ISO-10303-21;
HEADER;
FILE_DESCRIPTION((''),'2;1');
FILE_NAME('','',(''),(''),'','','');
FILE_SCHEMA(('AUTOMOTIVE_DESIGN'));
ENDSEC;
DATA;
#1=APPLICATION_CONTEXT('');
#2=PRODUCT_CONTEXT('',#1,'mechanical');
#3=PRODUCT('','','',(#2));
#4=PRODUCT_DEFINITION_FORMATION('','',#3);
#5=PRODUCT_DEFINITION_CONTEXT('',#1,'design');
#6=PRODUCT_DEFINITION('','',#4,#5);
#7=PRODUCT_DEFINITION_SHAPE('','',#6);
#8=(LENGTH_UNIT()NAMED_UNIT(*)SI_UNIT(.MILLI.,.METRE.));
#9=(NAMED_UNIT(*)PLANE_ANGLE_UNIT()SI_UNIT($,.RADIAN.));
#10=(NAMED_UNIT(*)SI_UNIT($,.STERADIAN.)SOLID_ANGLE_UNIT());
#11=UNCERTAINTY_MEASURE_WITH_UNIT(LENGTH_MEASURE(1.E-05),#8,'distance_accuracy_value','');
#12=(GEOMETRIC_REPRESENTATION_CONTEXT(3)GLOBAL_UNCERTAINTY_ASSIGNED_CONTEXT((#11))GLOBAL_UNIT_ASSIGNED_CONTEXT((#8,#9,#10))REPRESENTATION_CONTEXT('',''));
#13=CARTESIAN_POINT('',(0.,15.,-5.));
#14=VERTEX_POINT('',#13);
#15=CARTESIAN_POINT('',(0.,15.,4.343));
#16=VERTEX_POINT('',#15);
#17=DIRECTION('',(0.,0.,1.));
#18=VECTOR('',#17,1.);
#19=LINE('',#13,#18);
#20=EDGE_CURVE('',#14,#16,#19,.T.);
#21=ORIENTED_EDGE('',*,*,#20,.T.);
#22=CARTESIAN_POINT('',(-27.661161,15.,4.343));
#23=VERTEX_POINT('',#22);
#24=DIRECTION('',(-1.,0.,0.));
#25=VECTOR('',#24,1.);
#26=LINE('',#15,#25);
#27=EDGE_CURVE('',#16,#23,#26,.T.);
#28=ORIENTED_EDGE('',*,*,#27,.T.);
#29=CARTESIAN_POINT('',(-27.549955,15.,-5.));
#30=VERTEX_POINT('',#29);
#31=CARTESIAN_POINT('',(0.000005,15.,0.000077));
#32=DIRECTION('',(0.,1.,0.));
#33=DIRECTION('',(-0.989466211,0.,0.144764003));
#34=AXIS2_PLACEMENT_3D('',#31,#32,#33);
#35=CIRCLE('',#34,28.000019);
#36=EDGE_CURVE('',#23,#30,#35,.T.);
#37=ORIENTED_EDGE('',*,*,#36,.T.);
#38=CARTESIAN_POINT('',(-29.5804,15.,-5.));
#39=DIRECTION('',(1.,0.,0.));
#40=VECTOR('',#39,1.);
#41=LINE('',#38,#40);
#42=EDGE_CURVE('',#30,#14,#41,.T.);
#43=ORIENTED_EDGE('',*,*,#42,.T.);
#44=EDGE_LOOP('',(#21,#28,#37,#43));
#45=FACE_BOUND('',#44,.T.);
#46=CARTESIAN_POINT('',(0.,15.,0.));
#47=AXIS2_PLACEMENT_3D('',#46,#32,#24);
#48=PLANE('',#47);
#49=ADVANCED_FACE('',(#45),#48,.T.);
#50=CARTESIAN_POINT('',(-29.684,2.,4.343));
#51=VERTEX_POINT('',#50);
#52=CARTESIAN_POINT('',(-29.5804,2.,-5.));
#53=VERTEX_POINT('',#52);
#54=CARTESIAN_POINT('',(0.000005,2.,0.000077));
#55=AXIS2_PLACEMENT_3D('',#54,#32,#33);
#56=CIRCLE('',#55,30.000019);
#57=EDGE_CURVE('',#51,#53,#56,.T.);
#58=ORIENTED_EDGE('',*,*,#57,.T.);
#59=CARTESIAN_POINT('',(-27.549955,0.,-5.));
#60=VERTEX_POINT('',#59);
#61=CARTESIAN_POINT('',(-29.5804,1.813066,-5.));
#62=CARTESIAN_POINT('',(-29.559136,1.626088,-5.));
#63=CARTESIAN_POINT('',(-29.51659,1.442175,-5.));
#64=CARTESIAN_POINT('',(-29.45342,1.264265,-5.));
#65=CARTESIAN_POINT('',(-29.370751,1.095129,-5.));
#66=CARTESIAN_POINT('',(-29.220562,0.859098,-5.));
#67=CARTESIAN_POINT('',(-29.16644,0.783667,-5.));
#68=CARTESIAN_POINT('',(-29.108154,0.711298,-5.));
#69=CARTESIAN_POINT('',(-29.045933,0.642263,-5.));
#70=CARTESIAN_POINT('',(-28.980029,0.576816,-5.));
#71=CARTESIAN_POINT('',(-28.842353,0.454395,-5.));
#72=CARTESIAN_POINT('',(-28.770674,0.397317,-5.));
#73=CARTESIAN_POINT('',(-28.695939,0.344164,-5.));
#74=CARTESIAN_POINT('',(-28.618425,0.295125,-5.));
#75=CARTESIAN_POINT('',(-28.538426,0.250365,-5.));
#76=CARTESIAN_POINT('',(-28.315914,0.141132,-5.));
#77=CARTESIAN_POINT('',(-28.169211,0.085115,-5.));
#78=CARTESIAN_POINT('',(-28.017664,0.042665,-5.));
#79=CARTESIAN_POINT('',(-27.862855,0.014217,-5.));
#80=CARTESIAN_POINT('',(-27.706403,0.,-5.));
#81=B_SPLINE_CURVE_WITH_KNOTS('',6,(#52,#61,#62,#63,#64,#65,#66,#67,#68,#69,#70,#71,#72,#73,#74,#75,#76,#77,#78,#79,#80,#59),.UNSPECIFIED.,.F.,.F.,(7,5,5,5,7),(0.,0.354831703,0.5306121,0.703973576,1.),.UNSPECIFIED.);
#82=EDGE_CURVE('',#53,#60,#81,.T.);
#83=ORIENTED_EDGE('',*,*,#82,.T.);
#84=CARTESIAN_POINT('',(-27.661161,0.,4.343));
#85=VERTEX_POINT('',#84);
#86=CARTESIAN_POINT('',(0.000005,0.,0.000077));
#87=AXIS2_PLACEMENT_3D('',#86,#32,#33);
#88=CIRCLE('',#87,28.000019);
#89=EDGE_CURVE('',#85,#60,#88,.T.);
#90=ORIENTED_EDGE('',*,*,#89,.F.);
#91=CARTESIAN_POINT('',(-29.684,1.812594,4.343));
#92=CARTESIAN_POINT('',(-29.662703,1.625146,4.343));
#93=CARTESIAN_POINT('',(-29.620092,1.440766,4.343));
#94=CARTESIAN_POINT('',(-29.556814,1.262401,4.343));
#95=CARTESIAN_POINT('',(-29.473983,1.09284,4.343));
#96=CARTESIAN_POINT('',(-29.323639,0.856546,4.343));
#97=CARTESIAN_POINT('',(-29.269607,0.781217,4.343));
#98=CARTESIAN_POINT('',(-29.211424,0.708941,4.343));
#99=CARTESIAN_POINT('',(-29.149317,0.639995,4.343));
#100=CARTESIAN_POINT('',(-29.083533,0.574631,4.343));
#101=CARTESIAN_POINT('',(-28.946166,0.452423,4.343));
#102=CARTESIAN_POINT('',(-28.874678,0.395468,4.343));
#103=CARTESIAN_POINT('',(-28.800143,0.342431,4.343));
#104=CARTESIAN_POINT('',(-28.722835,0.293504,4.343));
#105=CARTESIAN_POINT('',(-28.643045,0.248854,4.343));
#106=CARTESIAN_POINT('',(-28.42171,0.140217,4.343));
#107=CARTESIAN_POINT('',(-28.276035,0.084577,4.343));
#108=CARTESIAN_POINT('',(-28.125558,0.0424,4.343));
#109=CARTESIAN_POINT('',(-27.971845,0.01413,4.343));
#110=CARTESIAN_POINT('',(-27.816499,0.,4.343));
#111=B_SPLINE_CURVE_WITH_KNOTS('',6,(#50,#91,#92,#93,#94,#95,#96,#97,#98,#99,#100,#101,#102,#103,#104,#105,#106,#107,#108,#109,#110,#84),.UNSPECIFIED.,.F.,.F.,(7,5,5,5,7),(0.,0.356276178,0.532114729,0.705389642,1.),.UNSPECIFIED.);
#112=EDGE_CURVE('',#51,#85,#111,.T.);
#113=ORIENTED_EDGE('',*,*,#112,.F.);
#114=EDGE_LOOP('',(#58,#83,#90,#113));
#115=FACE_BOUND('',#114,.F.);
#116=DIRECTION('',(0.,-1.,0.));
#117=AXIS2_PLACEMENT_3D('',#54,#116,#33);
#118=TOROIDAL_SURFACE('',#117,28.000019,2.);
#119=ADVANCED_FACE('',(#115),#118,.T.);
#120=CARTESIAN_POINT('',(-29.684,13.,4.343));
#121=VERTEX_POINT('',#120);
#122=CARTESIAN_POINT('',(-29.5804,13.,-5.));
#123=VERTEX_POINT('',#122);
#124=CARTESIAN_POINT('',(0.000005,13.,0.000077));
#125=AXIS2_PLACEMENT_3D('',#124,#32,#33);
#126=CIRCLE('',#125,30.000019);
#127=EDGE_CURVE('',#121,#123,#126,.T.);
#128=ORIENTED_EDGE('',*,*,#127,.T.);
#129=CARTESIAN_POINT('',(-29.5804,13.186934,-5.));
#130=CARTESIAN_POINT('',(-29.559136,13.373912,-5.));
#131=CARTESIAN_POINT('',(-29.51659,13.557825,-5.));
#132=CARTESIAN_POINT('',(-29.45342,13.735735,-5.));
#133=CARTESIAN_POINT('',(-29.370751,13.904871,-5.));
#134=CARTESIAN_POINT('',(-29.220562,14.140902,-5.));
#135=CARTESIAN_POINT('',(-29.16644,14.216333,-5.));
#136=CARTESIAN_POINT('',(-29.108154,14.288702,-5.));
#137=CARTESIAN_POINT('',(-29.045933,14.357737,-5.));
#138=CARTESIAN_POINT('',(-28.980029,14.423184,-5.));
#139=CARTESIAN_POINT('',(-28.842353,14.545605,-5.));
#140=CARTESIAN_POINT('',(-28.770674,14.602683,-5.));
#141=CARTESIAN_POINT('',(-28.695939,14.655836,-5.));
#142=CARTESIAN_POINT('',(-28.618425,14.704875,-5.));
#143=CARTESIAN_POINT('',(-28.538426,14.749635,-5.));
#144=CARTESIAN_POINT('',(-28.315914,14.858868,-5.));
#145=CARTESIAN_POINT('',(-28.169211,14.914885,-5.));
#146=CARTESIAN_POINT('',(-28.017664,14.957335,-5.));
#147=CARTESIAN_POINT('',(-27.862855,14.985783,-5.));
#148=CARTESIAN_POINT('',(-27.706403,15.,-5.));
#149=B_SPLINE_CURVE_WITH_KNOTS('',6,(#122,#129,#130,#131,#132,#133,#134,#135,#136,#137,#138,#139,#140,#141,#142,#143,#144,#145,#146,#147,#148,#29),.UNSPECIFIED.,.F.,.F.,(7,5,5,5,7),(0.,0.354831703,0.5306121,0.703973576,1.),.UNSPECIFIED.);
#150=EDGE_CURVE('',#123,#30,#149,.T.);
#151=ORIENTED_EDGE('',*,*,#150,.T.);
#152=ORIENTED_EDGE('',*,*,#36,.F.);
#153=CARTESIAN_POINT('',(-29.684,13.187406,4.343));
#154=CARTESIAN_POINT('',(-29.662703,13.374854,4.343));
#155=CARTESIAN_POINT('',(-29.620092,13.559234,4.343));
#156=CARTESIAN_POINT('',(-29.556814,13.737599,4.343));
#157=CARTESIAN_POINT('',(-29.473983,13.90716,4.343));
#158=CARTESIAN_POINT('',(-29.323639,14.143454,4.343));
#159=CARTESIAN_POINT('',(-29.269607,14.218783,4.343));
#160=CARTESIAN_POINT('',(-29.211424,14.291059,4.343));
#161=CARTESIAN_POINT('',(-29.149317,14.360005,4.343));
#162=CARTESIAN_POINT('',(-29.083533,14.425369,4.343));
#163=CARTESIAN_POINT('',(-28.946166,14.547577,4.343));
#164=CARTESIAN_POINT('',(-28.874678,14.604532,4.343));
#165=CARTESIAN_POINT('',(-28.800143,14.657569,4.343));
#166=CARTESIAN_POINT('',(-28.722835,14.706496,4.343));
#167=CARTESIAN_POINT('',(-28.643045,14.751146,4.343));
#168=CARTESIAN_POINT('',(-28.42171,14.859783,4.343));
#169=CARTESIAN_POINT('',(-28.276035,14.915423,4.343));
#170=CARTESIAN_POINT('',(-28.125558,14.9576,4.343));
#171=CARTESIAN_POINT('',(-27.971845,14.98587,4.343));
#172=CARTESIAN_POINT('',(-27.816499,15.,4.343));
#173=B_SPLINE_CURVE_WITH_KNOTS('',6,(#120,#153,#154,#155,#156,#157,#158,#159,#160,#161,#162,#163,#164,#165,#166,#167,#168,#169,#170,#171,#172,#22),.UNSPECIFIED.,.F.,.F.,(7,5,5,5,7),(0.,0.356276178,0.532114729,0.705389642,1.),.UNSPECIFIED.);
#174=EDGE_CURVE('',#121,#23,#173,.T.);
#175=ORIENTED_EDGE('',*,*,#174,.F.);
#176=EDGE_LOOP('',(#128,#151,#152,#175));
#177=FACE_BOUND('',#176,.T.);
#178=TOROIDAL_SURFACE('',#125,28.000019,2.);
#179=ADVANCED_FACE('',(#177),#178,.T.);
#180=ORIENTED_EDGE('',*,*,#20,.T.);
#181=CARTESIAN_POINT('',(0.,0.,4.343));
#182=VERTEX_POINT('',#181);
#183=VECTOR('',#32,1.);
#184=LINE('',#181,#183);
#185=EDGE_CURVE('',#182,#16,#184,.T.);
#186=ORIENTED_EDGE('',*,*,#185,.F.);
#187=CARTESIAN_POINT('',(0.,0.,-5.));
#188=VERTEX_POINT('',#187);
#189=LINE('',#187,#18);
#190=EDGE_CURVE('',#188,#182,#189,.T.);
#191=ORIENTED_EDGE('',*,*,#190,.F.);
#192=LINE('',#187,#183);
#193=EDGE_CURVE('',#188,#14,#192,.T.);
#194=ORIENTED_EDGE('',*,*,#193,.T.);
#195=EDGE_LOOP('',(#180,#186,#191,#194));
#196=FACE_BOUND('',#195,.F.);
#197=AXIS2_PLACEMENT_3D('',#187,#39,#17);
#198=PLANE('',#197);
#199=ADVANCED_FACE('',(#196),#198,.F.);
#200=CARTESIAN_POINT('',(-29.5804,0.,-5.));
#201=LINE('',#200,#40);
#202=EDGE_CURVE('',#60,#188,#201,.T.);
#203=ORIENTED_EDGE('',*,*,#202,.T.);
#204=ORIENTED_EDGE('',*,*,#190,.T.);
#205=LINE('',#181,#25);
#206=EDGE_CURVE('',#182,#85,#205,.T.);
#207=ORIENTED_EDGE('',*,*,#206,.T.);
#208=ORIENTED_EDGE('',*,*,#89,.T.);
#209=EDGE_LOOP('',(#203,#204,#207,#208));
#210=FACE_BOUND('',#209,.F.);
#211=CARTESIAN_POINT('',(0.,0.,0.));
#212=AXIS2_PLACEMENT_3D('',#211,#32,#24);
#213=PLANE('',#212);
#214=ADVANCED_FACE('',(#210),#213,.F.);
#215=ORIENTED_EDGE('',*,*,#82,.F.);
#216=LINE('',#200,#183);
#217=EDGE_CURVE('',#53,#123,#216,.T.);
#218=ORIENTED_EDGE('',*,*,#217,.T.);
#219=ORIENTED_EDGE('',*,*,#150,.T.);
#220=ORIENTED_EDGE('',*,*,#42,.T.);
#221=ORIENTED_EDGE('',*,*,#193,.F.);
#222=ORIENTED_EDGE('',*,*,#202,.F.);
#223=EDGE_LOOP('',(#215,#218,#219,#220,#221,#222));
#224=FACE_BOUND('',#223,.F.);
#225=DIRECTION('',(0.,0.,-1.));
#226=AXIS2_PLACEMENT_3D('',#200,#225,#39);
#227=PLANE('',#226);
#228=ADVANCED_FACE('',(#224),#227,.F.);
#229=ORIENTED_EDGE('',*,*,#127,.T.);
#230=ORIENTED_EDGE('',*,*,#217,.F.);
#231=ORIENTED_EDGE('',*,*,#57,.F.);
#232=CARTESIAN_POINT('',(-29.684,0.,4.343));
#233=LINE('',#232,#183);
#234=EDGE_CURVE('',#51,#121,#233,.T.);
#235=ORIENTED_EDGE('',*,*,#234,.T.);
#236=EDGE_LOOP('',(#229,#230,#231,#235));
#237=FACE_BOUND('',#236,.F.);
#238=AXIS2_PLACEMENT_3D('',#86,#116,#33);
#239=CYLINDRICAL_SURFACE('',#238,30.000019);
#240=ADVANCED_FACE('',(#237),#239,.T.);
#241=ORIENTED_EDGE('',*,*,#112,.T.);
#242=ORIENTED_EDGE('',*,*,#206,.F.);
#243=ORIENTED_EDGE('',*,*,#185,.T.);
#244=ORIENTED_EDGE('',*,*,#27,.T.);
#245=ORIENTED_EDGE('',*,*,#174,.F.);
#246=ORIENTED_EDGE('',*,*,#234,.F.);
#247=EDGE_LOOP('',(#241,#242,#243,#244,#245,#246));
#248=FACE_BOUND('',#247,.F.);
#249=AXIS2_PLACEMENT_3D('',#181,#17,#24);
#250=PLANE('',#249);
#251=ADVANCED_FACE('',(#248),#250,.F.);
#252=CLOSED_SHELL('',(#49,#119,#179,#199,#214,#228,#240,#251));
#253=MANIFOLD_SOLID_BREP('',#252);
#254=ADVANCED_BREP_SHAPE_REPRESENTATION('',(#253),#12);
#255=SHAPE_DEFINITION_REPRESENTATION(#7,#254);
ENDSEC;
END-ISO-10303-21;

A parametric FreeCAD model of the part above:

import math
import FreeCAD as App
import Part
import Sketcher

V = App.Vector
Q = App.Units.Quantity


def edges_at(feature, points):
    """Names of the edges that pass closest to the given points."""
    edges = feature.Shape.Edges
    near = lambda p: min(range(len(edges)), key=lambda i: edges[i].distToShape(Part.Vertex(*p))[0])
    return sorted({f"Edge{near(p) + 1}" for p in points})

doc = App.newDocument("Part")
body = doc.addObject("PartDesign::Body", "Body")

# Sketch on XZ plane
sketch1 = body.newObject("Sketcher::SketchObject", "Sketch")
sketch1.AttachmentSupport = (doc.getObject("XZ_Plane"), [""])
sketch1.MapMode = "FlatFace"
sketch1.addGeometry([
    Part.LineSegment(V(0, 4, 0), V(-30, 4, 0)),
    Part.ArcOfCircle(Part.Circle(V(0, 0, 0), V(0, 0, 1), 30), math.radians(-170), math.radians(172)),
    Part.LineSegment(V(-30, -5, 0), V(0, -5, 0)),
    Part.LineSegment(V(0, -5, 0), V(0, 4, 0)),
], False)
sketch1.addConstraint([
    Sketcher.Constraint("Coincident", 0, 2, 1, 2),
    Sketcher.Constraint("Coincident", 1, 1, 2, 1),
    Sketcher.Constraint("Coincident", 2, 2, 3, 1),
    Sketcher.Constraint("Coincident", 3, 2, 0, 1),
    Sketcher.Constraint("Horizontal", 0),
    Sketcher.Constraint("Horizontal", 2),
    Sketcher.Constraint("Vertical", 3),
    Sketcher.Constraint("Coincident", 1, 3, -1, 1),
    Sketcher.Constraint("PointOnObject", 2, 2, -2),
    Sketcher.Constraint("Radius", 1, Q("30 mm")),
    Sketcher.Constraint("DistanceY", 1, 1, -1, 1, Q("5 mm")),
    Sketcher.Constraint("DistanceX", 0, 2, 0, 1, Q("29.684 mm")),
])
pad1 = body.newObject("PartDesign::Pad", "Pad")
pad1.Profile = sketch1
pad1.Length = 15
pad1.Reversed = True
doc.recompute()

fillet = body.newObject("PartDesign::Fillet", "Fillet")
fillet.Base = (pad1, edges_at(pad1, [(29.998, 15, 0.333), (29.998, 0, 0.333)]))
fillet.Radius = 2

doc.recompute()
